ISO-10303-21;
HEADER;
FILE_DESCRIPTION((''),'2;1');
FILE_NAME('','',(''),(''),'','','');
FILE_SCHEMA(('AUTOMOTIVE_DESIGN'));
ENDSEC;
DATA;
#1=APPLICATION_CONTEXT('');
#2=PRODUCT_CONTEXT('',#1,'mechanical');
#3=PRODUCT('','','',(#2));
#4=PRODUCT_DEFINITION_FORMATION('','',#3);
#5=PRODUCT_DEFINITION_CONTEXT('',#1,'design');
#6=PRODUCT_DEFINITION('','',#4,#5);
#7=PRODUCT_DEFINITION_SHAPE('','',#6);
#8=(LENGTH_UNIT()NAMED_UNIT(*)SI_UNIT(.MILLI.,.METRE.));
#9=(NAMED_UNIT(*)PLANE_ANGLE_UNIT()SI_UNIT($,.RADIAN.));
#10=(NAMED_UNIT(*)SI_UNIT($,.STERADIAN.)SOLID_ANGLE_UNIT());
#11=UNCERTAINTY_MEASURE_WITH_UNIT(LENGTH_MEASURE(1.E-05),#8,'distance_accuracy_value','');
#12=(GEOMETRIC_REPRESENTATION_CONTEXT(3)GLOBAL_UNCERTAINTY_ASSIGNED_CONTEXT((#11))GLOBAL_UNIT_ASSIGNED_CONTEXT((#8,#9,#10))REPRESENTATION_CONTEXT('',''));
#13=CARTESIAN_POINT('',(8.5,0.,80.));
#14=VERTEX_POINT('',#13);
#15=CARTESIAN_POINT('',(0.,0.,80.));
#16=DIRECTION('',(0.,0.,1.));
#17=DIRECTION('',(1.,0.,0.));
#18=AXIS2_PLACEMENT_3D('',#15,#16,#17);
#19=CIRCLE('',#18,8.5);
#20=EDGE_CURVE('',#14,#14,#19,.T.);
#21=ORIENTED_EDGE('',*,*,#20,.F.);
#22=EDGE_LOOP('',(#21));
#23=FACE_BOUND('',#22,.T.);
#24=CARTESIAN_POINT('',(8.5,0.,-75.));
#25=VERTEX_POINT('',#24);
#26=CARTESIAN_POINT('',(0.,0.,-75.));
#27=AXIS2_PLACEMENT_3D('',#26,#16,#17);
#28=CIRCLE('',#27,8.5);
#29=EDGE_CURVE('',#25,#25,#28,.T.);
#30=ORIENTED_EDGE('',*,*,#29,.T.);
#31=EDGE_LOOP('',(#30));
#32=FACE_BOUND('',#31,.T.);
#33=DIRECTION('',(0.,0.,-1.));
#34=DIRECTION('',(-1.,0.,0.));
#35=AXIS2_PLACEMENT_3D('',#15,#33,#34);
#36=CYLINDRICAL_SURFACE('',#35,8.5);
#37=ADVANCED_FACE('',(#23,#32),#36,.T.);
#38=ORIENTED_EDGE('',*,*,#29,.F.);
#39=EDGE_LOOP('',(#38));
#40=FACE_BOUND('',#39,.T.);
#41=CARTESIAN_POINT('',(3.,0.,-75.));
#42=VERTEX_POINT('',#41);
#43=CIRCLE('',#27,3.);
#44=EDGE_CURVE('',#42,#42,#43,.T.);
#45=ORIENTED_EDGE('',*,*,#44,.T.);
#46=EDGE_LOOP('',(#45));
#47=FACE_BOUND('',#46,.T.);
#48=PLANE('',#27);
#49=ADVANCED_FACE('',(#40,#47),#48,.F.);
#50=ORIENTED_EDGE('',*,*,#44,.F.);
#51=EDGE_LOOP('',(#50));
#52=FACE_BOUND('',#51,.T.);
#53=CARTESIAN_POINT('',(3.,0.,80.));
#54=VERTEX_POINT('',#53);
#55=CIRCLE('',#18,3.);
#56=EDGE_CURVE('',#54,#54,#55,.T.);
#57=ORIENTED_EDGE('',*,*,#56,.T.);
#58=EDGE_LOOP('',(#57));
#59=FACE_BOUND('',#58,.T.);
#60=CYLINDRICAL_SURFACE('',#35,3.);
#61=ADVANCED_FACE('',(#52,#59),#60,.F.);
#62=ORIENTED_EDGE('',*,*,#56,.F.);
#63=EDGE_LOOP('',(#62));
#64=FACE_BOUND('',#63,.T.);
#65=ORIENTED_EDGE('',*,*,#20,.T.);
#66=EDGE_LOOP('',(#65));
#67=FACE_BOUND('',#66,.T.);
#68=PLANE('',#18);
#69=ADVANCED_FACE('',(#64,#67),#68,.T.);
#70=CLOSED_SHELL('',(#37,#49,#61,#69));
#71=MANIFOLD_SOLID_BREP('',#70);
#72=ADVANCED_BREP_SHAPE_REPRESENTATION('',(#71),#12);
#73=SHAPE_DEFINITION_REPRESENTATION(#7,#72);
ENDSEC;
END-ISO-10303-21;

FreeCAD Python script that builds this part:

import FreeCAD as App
import Part
import Sketcher

V = App.Vector

doc = App.newDocument("Part")
params = doc.addObject("Spreadsheet::Sheet", "Params")
for row, (alias, value) in enumerate([
    ("sketch1_diameter", "17 mm"),
    ("sketch1_diameter2", "6 mm"),
    ("pad1_length", "155 mm"),
], start=1):
    params.set(f"A{row}", alias)
    params.set(f"B{row}", "=" + value)
    params.setAlias(f"B{row}", alias)

body = doc.addObject("PartDesign::Body", "Body")

# Sketch on XY plane
sketch1 = body.newObject("Sketcher::SketchObject", "Sketch")
sketch1.AttachmentSupport = (doc.getObject("XY_Plane"), [""])
sketch1.MapMode = "FlatFace"
sketch1.AttachmentOffset = App.Placement(V(0, 0, -75), App.Rotation())
sketch1.addGeometry([
    Part.Circle(V(0, 0, 0), V(0, 0, 1), 8.5),
    Part.Circle(V(0, 0, 0), V(0, 0, 1), 3),
], False)
sketch1.addConstraint([
    Sketcher.Constraint("Coincident", 0, 3, -1, 1),
    Sketcher.Constraint("Coincident", 1, 3, -1, 1),
    Sketcher.Constraint("Diameter", 0, 17.0),
    Sketcher.Constraint("Diameter", 1, 6.0),
])
sketch1.setExpression("Constraints[2]", "Params.sketch1_diameter")
sketch1.setExpression("Constraints[3]", "Params.sketch1_diameter2")
pad1 = body.newObject("PartDesign::Pad", "Pad")
pad1.Profile = sketch1
pad1.setExpression("Length", "Params.pad1_length")

doc.recompute()
